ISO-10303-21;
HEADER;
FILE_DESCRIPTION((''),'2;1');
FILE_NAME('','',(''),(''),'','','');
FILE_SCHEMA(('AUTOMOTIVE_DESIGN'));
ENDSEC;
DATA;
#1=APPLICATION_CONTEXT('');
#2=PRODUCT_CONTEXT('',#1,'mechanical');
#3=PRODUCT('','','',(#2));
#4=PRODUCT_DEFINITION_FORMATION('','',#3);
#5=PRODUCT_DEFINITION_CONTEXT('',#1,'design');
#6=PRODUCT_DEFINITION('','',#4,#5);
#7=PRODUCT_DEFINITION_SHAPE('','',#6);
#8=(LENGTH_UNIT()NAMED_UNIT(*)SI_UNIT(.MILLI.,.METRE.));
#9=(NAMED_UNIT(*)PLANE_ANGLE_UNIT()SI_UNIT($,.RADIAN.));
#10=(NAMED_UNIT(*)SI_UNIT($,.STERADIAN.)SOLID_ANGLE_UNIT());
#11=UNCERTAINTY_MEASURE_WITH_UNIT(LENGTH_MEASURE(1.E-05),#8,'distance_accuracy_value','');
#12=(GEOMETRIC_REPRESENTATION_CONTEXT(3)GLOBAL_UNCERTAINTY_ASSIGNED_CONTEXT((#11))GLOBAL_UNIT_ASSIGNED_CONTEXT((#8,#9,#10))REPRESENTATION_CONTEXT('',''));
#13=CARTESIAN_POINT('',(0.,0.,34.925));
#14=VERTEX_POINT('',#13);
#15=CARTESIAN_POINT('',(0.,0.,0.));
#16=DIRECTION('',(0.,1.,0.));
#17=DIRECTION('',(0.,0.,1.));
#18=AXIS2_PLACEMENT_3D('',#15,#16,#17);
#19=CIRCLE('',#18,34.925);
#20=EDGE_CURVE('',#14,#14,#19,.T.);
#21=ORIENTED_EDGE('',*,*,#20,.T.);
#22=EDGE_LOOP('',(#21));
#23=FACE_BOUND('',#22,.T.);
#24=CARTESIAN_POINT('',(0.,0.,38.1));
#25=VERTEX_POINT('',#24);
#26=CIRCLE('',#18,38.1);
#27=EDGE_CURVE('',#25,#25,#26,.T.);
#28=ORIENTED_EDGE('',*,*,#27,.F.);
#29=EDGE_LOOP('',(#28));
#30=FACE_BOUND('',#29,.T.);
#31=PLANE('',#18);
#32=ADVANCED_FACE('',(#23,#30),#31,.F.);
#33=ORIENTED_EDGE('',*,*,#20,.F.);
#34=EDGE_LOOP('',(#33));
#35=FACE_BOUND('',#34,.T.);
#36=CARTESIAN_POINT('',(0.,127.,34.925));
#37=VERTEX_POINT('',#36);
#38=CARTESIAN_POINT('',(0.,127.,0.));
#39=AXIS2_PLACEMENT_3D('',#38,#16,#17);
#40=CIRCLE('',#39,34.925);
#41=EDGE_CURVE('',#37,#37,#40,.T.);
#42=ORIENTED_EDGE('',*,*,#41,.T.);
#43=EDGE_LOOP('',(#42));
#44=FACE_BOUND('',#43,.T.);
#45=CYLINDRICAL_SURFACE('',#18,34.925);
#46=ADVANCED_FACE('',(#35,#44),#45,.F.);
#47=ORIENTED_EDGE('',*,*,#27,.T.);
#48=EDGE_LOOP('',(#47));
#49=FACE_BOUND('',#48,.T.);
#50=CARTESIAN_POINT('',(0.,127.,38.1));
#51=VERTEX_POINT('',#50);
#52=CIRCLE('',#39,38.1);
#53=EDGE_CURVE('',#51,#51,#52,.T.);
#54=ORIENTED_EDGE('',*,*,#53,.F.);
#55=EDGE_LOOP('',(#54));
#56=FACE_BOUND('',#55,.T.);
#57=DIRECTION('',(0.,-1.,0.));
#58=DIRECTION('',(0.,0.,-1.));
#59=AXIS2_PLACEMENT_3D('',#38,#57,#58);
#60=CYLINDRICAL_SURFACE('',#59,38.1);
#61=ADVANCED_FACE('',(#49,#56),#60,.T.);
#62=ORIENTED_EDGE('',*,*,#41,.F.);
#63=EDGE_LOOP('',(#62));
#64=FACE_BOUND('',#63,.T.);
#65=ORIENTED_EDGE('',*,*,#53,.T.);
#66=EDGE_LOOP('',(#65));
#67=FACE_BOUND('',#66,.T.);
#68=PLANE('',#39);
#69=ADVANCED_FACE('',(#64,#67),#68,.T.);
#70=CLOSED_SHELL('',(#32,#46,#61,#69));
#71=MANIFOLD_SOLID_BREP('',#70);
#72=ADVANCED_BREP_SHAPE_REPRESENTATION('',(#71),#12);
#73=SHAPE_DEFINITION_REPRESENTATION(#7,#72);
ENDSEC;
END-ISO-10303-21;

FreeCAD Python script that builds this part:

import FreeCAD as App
import Part
import Sketcher
Q = App.Units.Quantity

doc = App.newDocument("Part")
body = doc.addObject("PartDesign::Body", "Body")

# Sketch on XZ plane
sketch1 = body.newObject("Sketcher::SketchObject", "Sketch")
sketch1.AttachmentSupport = (doc.getObject("XZ_Plane"), [""])
sketch1.MapMode = "FlatFace"
sketch1.addGeometry(Part.Circle(App.Vector(0, 0, 0), App.Vector(0, 0, 1), 38), False)
sketch1.addConstraint(Sketcher.Constraint("Coincident", 0, 3, -1, 1))
sketch1.addConstraint(Sketcher.Constraint("Diameter", 0, Q("3 in")))
pad1 = body.newObject("PartDesign::Pad", "Pad")
pad1.Profile = sketch1
pad1.Length = Q("5 in")
pad1.Reversed = True

# Sketch on XZ plane
sketch2 = body.newObject("Sketcher::SketchObject", "Sketch001")
sketch2.AttachmentSupport = (doc.getObject("XZ_Plane"), [""])
sketch2.MapMode = "FlatFace"
sketch2.AttachmentOffset = App.Placement(App.Vector(0, 0, -5 * 25.4), App.Rotation())
sketch2.addGeometry(Part.Circle(App.Vector(0, 0, 0), App.Vector(0, 0, 1), 35), False)
sketch2.addConstraint(Sketcher.Constraint("Coincident", 0, 3, -1, 1))
sketch2.addConstraint(Sketcher.Constraint("Diameter", 0, Q("2.75 in")))
pocket1 = body.newObject("PartDesign::Pocket", "Pocket")
pocket1.Profile = sketch2
pocket1.Length = Q("5 in")
pocket1.Reversed = True

doc.recompute()
